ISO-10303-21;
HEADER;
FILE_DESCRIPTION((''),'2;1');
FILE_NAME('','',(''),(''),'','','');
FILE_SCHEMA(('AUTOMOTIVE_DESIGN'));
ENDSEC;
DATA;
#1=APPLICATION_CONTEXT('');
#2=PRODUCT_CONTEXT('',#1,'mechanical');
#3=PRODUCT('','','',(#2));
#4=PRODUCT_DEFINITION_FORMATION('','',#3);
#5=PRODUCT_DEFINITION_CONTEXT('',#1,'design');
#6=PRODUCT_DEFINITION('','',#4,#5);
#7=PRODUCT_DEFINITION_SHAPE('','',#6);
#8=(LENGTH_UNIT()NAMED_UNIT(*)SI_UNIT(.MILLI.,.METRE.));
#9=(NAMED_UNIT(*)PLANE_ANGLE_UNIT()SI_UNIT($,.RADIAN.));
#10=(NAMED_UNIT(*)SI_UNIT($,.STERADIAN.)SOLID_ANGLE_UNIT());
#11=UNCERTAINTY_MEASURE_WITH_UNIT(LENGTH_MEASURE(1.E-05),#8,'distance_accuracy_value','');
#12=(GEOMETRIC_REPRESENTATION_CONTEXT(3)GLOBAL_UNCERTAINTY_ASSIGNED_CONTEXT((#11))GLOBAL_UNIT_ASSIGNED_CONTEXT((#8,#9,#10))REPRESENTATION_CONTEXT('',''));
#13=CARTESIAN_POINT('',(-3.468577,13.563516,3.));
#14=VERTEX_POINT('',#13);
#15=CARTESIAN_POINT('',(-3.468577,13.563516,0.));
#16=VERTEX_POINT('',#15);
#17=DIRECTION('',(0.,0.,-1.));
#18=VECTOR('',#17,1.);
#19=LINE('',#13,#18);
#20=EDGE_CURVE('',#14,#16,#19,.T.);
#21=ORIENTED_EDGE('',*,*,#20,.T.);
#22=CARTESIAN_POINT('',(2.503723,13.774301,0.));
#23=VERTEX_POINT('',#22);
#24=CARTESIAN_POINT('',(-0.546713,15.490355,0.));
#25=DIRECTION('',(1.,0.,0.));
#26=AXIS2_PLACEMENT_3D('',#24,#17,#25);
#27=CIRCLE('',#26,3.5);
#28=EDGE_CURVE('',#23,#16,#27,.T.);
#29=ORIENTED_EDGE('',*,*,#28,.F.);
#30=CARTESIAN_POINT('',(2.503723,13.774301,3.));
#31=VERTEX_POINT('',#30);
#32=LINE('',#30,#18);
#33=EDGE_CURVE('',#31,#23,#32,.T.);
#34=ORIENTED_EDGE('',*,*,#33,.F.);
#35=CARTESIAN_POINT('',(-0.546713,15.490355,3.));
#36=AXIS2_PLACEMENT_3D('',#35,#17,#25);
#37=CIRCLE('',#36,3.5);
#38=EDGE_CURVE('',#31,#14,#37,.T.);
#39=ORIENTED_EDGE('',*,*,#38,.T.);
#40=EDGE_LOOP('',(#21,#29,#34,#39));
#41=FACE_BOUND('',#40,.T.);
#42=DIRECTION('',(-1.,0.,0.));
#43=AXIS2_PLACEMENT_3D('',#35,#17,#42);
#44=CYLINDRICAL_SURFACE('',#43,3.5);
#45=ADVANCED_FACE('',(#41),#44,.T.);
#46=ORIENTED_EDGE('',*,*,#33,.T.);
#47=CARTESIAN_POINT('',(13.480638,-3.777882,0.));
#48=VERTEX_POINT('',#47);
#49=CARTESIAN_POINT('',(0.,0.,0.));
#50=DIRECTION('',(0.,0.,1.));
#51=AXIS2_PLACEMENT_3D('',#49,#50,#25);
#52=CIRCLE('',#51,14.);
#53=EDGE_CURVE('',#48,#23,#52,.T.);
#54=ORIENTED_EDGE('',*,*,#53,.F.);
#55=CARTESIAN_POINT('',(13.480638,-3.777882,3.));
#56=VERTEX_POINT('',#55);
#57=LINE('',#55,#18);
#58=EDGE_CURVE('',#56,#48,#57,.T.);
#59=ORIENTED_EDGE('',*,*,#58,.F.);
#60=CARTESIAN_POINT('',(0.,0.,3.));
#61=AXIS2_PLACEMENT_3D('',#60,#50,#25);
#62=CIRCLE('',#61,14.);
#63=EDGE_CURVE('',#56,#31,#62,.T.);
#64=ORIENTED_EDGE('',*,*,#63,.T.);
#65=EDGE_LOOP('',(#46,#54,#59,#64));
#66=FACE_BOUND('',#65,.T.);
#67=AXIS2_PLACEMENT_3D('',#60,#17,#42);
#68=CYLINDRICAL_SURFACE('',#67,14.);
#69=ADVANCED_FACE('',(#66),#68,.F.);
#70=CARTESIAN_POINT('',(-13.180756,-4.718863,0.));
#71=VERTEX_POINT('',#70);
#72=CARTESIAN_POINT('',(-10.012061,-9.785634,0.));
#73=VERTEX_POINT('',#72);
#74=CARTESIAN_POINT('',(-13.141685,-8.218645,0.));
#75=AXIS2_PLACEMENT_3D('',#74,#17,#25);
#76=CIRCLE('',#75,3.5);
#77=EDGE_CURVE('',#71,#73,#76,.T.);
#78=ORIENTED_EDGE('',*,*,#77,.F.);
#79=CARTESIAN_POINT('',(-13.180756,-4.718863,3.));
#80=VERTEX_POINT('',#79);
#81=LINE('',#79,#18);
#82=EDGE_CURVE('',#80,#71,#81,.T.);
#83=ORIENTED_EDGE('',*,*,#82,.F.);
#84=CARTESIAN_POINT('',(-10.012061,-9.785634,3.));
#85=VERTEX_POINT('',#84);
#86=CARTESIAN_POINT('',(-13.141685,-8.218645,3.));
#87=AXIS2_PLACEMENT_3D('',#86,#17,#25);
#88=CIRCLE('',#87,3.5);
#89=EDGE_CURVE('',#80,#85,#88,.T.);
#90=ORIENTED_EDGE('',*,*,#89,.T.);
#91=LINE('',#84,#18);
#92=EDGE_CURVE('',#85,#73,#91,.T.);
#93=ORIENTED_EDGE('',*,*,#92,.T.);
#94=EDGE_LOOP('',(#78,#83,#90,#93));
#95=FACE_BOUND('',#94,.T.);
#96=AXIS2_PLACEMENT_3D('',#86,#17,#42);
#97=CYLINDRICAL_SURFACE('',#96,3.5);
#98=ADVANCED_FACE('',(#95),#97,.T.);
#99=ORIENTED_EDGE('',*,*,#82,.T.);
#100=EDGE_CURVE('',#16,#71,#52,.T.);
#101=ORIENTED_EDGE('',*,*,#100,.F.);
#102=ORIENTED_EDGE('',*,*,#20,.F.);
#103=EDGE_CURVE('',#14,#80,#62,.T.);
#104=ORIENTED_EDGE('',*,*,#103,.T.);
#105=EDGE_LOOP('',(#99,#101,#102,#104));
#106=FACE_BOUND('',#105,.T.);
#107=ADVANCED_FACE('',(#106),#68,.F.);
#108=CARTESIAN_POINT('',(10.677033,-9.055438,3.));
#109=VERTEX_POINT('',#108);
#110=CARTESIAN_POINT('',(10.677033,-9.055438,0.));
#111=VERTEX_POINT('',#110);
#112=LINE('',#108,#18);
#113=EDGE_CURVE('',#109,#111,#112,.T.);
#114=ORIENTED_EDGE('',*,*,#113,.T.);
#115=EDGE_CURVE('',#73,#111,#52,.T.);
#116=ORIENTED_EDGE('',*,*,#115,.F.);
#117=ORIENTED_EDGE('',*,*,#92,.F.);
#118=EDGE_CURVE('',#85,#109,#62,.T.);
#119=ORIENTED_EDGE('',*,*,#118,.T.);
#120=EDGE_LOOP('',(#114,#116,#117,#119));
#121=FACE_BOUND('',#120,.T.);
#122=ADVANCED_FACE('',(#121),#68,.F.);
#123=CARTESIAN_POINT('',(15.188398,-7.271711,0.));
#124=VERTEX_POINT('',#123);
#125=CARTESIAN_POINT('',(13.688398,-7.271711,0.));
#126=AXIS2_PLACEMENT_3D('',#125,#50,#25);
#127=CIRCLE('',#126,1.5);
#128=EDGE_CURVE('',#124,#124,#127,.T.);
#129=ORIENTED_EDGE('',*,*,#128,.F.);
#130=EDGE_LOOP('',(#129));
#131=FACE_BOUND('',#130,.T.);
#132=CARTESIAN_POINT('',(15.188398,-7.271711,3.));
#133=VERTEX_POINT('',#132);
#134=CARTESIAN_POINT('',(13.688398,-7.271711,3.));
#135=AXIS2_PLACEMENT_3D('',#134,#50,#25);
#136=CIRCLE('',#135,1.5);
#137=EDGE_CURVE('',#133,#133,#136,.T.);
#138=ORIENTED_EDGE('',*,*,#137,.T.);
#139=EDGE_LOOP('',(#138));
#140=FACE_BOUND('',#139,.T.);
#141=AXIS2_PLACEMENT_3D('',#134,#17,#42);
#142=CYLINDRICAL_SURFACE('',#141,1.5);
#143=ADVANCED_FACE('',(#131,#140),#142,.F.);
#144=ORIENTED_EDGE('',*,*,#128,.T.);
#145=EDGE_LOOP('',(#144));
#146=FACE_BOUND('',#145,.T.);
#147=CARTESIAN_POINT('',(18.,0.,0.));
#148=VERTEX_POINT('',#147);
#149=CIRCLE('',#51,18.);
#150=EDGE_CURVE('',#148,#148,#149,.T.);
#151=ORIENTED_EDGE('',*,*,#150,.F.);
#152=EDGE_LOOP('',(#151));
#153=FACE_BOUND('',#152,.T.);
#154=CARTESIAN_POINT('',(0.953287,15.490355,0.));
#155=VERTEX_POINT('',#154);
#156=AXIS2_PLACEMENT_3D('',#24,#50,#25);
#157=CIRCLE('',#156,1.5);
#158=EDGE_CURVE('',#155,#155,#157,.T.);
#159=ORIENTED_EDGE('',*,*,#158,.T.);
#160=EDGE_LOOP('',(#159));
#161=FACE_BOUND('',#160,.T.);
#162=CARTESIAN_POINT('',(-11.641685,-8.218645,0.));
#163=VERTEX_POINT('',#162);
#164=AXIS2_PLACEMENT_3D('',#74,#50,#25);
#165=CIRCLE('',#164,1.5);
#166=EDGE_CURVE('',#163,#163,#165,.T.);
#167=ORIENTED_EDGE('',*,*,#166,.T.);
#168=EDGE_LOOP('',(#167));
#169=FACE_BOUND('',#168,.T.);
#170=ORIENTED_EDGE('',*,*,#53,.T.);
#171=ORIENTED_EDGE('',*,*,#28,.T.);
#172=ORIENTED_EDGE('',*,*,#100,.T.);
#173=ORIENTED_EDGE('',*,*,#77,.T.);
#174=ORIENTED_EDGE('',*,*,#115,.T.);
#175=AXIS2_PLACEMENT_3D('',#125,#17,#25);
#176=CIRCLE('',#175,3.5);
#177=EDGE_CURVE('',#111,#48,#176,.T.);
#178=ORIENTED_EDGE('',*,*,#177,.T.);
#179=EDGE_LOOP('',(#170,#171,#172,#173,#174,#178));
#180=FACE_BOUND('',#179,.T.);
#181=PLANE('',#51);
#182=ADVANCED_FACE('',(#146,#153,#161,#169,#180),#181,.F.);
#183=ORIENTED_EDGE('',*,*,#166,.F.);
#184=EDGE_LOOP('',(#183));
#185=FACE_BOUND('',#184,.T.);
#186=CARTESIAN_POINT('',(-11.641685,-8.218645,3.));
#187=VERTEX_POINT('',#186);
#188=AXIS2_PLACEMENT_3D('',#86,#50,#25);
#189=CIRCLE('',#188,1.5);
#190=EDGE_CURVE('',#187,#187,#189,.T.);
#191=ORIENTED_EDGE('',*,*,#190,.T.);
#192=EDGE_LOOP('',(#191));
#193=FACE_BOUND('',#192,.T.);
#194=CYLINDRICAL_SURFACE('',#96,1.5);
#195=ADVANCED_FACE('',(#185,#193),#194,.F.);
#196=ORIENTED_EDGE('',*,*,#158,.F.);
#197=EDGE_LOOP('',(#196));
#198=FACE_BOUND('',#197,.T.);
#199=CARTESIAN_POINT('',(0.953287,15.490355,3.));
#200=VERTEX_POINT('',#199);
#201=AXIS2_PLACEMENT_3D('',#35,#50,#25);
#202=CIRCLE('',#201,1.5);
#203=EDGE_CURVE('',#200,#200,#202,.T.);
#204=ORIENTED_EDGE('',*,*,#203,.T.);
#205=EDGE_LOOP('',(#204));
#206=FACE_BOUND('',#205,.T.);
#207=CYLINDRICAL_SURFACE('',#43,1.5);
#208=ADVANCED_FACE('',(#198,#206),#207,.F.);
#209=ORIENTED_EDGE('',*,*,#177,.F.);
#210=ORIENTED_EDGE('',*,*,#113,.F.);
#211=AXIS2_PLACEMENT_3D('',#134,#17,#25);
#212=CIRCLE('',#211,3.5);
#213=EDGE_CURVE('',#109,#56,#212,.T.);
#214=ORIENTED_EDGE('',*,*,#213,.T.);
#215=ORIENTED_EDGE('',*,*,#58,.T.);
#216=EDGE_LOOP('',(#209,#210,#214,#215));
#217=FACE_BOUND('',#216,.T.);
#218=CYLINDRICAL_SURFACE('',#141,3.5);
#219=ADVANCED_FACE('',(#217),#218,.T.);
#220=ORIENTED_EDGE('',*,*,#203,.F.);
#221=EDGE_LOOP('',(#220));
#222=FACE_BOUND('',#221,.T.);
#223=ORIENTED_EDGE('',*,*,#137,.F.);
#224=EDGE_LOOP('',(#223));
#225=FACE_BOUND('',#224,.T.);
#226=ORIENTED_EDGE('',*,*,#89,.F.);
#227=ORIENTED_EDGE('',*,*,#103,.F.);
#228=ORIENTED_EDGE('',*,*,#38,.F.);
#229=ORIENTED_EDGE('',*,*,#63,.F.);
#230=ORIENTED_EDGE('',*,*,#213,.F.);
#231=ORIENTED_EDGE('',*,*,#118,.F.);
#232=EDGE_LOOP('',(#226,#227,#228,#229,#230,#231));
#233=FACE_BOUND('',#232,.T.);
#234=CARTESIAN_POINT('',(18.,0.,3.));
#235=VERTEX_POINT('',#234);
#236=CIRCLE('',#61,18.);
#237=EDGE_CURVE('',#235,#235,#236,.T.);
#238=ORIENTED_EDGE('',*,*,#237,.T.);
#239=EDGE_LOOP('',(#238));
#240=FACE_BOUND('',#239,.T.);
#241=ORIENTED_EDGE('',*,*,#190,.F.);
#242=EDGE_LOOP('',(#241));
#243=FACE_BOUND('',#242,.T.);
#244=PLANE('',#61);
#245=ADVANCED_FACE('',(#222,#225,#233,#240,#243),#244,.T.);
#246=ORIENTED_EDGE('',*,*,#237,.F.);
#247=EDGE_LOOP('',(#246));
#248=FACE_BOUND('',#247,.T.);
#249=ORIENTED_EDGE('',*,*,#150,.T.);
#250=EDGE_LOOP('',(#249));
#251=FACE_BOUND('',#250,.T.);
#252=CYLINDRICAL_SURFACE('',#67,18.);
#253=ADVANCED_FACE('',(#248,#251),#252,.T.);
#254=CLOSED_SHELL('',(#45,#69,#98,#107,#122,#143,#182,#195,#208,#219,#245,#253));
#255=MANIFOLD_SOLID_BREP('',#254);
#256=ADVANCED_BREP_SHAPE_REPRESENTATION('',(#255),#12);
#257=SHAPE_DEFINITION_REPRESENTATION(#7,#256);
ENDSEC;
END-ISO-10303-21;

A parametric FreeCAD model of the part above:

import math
import FreeCAD as App
import Part
import Sketcher
from FreeCAD import Vector

doc = App.newDocument("Part")
body = doc.addObject("PartDesign::Body", "Body")

# Sketch on XY plane
sketch1 = body.newObject("Sketcher::SketchObject", "Sketch")
sketch1.AttachmentSupport = (doc.getObject("XY_Plane"), [""])
sketch1.MapMode = "FlatFace"
sketch1.addGeometry([
    Part.Circle(Vector(0, 0, 0), Vector(0, 0, 1), 18),  # 0
    Part.Circle(Vector(-13.1, -8.2, 0), Vector(0, 0, 1), 1.5),  # 1
    Part.ArcOfCircle(Part.Circle(Vector(0, 0, 0), Vector(0, 0, 1), 14), math.radians(104), math.radians(200)),  # 2
    Part.ArcOfCircle(Part.Circle(Vector(-0.5, 15.5, 0), Vector(0, 0, 1), 3.5), math.radians(-147), math.radians(-29)),  # 3
    Part.ArcOfCircle(Part.Circle(Vector(0, 0, 0), Vector(0, 0, 1), 14), math.radians(-16), math.radians(80)),  # 4
    Part.ArcOfCircle(Part.Circle(Vector(13.7, -7.3, 0), Vector(0, 0, 1), 3.5), math.radians(93), math.radians(211)),  # 5
    Part.ArcOfCircle(Part.Circle(Vector(0, 0, 0), Vector(0, 0, 1), 14), math.radians(-136), math.radians(-40)),  # 6
    Part.ArcOfCircle(Part.Circle(Vector(-13.1, -8.2, 0), Vector(0, 0, 1), 3.5), math.radians(-27), math.radians(91)),  # 7
    Part.Circle(Vector(13.7, -7.3, 0), Vector(0, 0, 1), 1.5),  # 8
    Part.Circle(Vector(-0.5, 15.5, 0), Vector(0, 0, 1), 1.5),  # 9
], False)
sketch1.addConstraint([
    Sketcher.Constraint("Coincident", 2, 1, 3, 1),
    Sketcher.Constraint("Coincident", 3, 2, 4, 2),
    Sketcher.Constraint("Coincident", 4, 1, 5, 1),
    Sketcher.Constraint("Coincident", 5, 2, 6, 2),
    Sketcher.Constraint("Coincident", 6, 1, 7, 1),
    Sketcher.Constraint("Coincident", 7, 2, 2, 2),
    Sketcher.Constraint("Coincident", 0, 3, -1, 1),
    Sketcher.Constraint("Coincident", 2, 3, -1, 1),
    Sketcher.Constraint("Coincident", 4, 3, -1, 1),
    Sketcher.Constraint("Coincident", 6, 3, -1, 1),
    Sketcher.Constraint("Coincident", 7, 3, 1, 3),
    Sketcher.Constraint("Coincident", 8, 3, 5, 3),
    Sketcher.Constraint("Coincident", 9, 3, 3, 3),
    Sketcher.Constraint("Equal", 2, 4),
    Sketcher.Constraint("Equal", 3, 5),
    Sketcher.Constraint("Equal", 4, 6),
    Sketcher.Constraint("Equal", 5, 7),
    Sketcher.Constraint("Equal", 1, 8),
    Sketcher.Constraint("Equal", 8, 9),
    Sketcher.Constraint("Diameter", 0, 36.0),
    Sketcher.Constraint("Diameter", 1, 3.0),
    Sketcher.Constraint("Radius", 2, 14.0),
    Sketcher.Constraint("Radius", 3, 3.5),
    Sketcher.Constraint("DistanceY", 1, 3, 3, 3, 23.709),
    Sketcher.Constraint("DistanceY", -1, 1, 3, 2, 13.774301),
    Sketcher.Constraint("DistanceX", 2, 1, 3, 2, 5.9723),
    Sketcher.Constraint("DistanceY", 5, 3, -1, 1, 7.271711),
    Sketcher.Constraint("DistanceX", -1, 1, 4, 1, 13.480638),
    Sketcher.Constraint("DistanceX", 6, 1, -1, 1, 10.012061),
])
pad1 = body.newObject("PartDesign::Pad", "Pad")
pad1.Profile = sketch1
pad1.Length = 3

doc.recompute()
